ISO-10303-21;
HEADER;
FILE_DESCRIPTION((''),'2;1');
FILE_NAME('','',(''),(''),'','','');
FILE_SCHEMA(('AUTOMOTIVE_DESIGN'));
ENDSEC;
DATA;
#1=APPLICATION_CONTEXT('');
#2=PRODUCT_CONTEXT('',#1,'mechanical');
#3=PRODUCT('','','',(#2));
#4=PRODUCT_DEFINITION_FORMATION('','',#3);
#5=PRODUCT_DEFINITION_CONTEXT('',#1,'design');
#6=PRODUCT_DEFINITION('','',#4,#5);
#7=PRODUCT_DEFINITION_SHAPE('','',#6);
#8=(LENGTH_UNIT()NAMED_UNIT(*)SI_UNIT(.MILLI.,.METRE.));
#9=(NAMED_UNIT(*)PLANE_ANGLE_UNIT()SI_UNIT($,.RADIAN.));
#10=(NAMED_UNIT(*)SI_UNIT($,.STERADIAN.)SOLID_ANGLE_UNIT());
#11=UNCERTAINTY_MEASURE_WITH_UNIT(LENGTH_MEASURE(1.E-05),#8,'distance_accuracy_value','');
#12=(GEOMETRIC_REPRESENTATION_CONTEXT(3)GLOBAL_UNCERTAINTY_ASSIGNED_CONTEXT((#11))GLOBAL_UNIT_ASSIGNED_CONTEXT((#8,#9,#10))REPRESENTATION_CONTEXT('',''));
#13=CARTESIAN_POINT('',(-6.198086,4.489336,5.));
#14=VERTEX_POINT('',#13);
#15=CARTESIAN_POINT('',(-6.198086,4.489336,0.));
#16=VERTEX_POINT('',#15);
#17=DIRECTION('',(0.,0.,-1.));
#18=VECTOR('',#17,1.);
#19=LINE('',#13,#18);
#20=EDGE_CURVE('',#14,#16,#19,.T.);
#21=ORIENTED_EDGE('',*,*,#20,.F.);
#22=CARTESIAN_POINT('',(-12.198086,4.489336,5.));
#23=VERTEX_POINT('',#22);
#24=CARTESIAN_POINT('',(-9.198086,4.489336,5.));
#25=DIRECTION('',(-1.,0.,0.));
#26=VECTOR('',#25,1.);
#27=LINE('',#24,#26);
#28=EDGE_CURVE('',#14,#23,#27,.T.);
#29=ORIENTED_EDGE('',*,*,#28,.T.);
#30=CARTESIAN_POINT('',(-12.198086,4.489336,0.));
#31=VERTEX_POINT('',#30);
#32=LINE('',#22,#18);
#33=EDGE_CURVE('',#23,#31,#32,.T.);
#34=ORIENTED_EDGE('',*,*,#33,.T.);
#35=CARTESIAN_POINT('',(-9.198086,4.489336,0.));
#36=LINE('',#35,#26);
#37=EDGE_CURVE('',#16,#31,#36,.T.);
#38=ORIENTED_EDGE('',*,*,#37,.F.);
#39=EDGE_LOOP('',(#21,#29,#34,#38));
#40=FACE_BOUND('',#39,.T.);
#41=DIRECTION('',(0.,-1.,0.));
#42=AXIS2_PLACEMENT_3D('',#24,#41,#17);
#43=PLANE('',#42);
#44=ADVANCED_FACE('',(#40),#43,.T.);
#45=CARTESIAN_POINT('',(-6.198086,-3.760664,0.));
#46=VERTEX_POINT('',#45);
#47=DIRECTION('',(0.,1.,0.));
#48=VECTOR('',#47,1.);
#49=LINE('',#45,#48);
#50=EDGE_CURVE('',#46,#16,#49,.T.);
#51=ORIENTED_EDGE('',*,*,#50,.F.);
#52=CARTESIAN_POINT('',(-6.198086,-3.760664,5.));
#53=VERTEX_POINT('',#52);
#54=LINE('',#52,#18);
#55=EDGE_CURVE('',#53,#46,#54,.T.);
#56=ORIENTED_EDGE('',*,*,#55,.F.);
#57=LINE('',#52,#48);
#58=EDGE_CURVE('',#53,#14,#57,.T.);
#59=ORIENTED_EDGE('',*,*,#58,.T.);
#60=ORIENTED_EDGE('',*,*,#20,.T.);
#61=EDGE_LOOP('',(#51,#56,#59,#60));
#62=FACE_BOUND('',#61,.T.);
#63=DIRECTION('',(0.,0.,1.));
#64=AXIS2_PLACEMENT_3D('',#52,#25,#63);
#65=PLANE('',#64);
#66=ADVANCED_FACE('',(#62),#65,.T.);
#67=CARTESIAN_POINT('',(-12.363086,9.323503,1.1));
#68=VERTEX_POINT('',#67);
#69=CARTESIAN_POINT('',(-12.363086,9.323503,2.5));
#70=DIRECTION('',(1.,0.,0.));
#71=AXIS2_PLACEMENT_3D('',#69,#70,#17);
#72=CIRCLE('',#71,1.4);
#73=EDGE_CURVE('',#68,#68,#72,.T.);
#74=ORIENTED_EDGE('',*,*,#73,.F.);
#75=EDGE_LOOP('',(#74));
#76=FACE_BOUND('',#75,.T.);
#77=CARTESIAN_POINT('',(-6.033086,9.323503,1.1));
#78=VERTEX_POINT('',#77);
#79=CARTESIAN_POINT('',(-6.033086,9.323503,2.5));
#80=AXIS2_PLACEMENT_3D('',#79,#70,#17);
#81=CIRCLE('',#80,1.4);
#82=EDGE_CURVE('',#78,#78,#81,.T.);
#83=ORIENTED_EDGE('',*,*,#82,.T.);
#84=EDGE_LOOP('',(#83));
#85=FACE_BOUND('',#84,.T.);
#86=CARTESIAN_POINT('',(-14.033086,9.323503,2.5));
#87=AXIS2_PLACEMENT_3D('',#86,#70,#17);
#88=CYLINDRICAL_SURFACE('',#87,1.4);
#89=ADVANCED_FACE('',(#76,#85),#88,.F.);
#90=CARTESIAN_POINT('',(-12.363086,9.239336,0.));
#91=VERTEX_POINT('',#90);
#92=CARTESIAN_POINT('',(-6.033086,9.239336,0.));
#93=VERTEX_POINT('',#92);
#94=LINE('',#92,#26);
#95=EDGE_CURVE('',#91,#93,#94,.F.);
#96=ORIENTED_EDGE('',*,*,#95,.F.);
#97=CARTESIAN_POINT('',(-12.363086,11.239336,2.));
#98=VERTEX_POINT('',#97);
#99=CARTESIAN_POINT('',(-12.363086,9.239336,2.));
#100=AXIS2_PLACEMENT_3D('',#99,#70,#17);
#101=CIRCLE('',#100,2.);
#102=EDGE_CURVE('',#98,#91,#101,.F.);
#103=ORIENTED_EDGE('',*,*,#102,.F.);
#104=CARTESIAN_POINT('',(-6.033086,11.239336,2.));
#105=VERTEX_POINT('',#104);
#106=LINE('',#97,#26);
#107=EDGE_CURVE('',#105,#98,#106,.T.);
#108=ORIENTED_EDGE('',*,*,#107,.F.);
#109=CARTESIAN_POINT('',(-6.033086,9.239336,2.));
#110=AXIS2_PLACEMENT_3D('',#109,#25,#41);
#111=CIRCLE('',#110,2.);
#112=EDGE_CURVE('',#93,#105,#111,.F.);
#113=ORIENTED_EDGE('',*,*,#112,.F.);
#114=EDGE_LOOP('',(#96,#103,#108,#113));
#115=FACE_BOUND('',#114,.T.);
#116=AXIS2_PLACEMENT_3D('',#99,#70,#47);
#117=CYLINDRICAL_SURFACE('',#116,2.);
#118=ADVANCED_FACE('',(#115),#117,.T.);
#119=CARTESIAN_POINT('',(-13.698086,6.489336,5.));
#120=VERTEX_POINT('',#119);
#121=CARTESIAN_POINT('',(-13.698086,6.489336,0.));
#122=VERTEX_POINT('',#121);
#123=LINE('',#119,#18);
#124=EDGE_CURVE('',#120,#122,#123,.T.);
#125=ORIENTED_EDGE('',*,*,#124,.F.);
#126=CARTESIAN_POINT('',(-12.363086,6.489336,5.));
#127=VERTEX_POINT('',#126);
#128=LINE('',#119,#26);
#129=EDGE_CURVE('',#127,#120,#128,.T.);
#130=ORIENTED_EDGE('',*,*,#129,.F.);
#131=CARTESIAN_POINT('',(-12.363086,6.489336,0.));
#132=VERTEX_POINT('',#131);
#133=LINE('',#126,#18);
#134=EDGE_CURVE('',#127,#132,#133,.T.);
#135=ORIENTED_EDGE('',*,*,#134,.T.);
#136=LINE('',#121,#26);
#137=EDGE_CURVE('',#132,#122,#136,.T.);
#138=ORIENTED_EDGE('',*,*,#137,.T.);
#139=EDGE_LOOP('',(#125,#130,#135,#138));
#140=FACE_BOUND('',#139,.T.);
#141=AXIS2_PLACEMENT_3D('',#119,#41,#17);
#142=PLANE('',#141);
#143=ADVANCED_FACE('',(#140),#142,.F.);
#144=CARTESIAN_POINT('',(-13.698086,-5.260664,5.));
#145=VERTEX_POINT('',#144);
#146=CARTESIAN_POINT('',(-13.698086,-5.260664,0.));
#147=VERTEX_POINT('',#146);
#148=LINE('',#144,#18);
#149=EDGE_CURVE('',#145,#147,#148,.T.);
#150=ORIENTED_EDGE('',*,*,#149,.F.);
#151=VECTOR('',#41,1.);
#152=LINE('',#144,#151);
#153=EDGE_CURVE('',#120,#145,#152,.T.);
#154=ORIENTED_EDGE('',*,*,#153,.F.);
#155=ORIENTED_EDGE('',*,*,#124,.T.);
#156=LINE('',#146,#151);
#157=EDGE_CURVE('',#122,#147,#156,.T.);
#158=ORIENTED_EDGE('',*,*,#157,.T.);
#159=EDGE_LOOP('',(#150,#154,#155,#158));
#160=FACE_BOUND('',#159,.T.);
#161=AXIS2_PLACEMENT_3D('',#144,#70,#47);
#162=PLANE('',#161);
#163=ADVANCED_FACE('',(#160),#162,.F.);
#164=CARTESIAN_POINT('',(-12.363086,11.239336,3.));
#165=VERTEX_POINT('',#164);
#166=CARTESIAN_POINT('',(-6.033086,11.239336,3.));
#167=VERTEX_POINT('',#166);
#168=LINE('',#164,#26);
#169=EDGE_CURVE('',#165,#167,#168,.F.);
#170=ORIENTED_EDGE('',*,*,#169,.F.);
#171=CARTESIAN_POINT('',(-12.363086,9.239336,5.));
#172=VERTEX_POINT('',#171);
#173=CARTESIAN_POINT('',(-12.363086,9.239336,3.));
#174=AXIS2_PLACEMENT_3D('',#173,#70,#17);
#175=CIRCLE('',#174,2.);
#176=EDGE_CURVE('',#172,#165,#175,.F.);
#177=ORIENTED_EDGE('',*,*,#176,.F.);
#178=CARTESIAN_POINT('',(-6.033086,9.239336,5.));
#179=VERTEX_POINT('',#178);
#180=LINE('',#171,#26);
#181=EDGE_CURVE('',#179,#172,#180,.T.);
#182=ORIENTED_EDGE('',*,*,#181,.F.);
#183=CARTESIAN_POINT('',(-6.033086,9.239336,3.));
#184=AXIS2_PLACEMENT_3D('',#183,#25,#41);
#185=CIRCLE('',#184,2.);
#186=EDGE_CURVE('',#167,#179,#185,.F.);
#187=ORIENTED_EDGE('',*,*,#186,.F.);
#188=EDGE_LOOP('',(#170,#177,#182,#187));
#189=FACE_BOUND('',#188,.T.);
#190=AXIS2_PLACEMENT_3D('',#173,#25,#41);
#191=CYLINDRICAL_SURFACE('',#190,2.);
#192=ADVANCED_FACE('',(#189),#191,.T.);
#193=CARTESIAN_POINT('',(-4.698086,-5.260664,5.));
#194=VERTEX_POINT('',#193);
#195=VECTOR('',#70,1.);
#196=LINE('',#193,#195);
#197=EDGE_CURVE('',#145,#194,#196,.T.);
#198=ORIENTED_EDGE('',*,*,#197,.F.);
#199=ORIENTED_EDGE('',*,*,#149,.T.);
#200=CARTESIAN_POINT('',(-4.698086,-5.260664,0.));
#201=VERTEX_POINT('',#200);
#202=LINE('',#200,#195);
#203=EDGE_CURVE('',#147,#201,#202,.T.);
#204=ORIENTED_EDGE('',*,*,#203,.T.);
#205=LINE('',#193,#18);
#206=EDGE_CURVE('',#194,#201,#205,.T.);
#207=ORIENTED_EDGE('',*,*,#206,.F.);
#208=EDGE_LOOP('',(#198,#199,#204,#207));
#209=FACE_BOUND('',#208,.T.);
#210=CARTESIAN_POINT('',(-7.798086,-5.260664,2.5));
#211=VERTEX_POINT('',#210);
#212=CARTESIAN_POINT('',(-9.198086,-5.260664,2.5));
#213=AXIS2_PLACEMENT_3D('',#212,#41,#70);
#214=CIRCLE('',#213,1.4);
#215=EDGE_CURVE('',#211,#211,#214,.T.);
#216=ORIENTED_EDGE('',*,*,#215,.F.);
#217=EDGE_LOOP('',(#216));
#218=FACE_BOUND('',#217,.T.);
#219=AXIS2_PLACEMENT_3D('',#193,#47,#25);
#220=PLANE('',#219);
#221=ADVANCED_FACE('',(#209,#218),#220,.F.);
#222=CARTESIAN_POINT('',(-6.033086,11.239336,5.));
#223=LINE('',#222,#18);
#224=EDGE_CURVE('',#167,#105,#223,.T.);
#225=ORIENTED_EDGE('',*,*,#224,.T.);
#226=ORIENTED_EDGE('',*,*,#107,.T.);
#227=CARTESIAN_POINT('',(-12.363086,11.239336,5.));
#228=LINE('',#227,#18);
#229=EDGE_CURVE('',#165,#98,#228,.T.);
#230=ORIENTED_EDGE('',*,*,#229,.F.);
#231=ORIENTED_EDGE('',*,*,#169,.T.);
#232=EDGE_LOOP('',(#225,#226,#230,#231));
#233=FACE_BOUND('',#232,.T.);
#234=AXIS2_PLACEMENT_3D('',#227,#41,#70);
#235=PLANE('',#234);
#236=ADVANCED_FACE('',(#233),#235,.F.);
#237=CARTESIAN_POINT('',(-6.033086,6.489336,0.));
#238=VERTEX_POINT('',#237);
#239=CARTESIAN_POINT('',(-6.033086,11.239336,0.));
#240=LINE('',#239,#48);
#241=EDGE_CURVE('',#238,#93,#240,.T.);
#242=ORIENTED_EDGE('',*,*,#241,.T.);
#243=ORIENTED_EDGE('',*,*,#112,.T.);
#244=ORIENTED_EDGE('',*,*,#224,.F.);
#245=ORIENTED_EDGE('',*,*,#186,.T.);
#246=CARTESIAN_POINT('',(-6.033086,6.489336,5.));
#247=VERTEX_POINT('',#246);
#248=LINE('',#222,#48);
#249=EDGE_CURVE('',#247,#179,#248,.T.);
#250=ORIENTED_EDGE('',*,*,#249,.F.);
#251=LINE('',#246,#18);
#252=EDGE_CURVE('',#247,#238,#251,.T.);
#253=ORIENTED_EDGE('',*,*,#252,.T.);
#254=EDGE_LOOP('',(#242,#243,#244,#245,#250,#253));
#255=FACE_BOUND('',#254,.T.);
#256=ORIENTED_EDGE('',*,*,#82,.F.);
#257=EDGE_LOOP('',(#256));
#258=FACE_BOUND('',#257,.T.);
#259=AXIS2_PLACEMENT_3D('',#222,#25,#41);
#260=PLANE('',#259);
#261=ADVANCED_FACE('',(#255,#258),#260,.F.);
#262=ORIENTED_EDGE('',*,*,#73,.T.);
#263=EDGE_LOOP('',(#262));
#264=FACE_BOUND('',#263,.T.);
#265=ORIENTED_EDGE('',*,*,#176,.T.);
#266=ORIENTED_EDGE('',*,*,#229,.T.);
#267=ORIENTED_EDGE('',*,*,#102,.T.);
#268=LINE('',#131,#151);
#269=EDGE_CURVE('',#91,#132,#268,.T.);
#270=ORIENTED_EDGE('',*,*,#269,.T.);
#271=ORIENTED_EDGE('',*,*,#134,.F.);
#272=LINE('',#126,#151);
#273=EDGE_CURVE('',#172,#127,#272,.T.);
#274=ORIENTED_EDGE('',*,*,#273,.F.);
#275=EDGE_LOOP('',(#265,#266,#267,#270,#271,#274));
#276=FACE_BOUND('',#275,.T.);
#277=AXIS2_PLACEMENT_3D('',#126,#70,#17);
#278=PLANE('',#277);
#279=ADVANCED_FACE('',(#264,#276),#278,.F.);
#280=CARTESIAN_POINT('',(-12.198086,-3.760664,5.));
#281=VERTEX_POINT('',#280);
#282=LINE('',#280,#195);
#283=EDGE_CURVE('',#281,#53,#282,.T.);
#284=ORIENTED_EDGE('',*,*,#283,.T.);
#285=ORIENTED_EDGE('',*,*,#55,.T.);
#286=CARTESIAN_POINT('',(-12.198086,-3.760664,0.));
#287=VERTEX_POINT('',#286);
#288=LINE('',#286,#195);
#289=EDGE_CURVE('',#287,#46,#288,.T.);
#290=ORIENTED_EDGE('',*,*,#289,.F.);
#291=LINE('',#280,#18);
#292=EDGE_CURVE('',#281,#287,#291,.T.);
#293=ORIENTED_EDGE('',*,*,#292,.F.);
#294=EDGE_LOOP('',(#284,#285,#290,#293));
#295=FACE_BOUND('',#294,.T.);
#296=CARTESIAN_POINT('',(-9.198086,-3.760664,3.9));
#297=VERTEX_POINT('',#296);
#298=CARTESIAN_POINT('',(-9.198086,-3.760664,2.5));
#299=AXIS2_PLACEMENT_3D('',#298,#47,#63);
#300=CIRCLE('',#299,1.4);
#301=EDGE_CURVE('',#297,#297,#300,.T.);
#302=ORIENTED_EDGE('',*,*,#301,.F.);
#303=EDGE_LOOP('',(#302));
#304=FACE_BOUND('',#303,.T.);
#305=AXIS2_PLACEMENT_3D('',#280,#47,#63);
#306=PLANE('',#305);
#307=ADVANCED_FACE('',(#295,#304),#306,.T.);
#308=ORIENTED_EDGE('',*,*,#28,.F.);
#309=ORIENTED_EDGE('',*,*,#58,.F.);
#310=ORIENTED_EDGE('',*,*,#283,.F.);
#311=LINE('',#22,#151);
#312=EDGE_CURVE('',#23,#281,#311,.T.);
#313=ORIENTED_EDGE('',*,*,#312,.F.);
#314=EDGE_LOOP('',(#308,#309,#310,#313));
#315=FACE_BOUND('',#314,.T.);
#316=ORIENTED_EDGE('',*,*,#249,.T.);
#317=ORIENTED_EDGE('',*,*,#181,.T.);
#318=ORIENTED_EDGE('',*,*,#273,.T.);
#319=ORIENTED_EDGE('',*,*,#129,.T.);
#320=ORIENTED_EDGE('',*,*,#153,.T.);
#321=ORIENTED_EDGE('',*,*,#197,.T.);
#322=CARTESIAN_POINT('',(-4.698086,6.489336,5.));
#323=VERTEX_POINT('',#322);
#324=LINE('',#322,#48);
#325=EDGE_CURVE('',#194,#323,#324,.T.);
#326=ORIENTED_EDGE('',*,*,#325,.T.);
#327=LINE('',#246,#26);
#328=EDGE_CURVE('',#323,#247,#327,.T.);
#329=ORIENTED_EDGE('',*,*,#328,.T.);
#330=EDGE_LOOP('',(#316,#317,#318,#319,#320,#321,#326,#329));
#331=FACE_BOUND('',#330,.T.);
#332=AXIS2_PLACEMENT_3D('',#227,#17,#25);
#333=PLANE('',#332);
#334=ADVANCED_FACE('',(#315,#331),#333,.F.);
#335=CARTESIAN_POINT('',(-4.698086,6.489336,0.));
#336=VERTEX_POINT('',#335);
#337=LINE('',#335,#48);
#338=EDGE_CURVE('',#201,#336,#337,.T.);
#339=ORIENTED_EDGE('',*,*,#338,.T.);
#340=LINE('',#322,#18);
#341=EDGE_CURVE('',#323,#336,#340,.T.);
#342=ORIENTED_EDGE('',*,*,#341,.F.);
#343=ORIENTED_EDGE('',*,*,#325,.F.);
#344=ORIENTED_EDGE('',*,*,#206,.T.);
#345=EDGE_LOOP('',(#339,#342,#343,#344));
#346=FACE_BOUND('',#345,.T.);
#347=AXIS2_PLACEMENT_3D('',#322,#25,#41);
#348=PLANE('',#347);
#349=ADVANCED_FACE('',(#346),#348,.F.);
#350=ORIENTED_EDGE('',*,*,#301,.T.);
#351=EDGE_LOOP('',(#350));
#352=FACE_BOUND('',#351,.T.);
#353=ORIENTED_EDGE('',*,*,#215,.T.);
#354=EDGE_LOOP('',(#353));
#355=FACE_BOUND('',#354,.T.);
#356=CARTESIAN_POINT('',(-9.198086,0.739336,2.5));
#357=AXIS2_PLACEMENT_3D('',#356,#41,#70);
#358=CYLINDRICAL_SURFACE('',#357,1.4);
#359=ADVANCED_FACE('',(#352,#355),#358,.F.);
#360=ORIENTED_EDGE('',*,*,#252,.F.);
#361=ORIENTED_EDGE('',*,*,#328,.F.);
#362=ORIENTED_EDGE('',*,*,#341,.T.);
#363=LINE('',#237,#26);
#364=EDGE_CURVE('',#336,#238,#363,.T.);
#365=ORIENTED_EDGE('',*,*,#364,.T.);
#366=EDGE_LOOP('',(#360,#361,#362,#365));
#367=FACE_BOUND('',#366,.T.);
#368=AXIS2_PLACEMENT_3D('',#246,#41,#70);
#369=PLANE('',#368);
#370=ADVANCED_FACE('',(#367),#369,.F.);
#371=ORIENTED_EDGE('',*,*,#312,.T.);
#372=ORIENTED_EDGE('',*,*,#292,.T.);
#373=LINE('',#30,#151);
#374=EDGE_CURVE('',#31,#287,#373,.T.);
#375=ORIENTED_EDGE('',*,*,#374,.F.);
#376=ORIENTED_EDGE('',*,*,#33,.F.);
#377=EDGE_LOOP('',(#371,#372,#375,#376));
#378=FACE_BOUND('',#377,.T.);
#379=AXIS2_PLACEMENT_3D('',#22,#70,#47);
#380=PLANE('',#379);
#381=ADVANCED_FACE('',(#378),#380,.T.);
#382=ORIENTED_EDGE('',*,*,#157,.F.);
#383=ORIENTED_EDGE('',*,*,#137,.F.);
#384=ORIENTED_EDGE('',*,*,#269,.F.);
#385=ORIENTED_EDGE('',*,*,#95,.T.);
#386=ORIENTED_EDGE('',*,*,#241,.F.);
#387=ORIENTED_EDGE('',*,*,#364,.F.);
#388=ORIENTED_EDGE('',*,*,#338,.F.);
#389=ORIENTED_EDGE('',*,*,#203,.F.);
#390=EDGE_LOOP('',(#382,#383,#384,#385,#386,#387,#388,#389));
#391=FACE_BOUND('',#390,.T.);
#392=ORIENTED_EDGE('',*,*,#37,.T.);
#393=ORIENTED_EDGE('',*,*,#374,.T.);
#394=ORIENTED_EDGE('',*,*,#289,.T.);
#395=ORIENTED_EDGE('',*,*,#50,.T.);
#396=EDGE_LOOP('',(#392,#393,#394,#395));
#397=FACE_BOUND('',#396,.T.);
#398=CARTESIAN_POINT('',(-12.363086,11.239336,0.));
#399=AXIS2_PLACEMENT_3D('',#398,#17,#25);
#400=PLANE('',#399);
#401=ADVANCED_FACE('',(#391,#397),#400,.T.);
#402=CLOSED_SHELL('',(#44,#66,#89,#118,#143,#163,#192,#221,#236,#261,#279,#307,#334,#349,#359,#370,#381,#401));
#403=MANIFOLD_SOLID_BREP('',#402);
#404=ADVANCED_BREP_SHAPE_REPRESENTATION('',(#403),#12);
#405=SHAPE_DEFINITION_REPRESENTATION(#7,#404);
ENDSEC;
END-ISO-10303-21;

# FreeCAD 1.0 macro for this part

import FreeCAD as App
import Part
import Sketcher
Q = App.Units.Quantity


def edges_at(feature, points):
    """Names of the edges that pass closest to the given points."""
    edges = feature.Shape.Edges
    near = lambda p: min(range(len(edges)), key=lambda i: edges[i].distToShape(Part.Vertex(*p))[0])
    return sorted({f"Edge{near(p) + 1}" for p in points})

doc = App.newDocument("Part")
body = doc.addObject("PartDesign::Body", "Body")

sketch1 = doc.addObject("Sketcher::SketchObject", "Sketch")
body.addObject(sketch1)
sketch1.AttachmentSupport = (doc.XY_Plane, [""])
sketch1.MapMode = "FlatFace"
sketch1.addGeometry([
    Part.LineSegment(App.Vector(-6, 11.2, 0), App.Vector(-12.4, 11.2, 0)),
    Part.LineSegment(App.Vector(-12.4, 11.2, 0), App.Vector(-12.4, 6.5, 0)),
    Part.LineSegment(App.Vector(-12.4, 6.5, 0), App.Vector(-13.7, 6.5, 0)),
    Part.LineSegment(App.Vector(-13.7, 6.5, 0), App.Vector(-13.7, -5.3, 0)),
    Part.LineSegment(App.Vector(-13.7, -5.3, 0), App.Vector(-4.7, -5.3, 0)),
    Part.LineSegment(App.Vector(-4.7, -5.3, 0), App.Vector(-4.7, 6.5, 0)),
    Part.LineSegment(App.Vector(-4.7, 6.5, 0), App.Vector(-6, 6.5, 0)),
    Part.LineSegment(App.Vector(-6, 6.5, 0), App.Vector(-6, 11.2, 0)),
    Part.LineSegment(App.Vector(-6.2, 4.5, 0), App.Vector(-6.2, -3.8, 0)),
    Part.LineSegment(App.Vector(-6.2, -3.8, 0), App.Vector(-12.2, -3.8, 0)),
    Part.LineSegment(App.Vector(-12.2, -3.8, 0), App.Vector(-12.2, 4.5, 0)),
    Part.LineSegment(App.Vector(-12.2, 4.5, 0), App.Vector(-6.2, 4.5, 0)),
], False)
sketch1.addConstraint([
    Sketcher.Constraint("Coincident", 0, 2, 1, 1),
    Sketcher.Constraint("Coincident", 1, 2, 2, 1),
    Sketcher.Constraint("Coincident", 2, 2, 3, 1),
    Sketcher.Constraint("Coincident", 3, 2, 4, 1),
    Sketcher.Constraint("Coincident", 4, 2, 5, 1),
    Sketcher.Constraint("Coincident", 5, 2, 6, 1),
    Sketcher.Constraint("Coincident", 6, 2, 7, 1),
    Sketcher.Constraint("Coincident", 7, 2, 0, 1),
    Sketcher.Constraint("Coincident", 8, 2, 9, 1),
    Sketcher.Constraint("Coincident", 9, 2, 10, 1),
    Sketcher.Constraint("Coincident", 10, 2, 11, 1),
    Sketcher.Constraint("Coincident", 11, 2, 8, 1),
    Sketcher.Constraint("Horizontal", 0),
    Sketcher.Constraint("Vertical", 1),
    Sketcher.Constraint("Horizontal", 2),
    Sketcher.Constraint("Vertical", 3),
    Sketcher.Constraint("Horizontal", 4),
    Sketcher.Constraint("Vertical", 5),
    Sketcher.Constraint("Horizontal", 6),
    Sketcher.Constraint("Vertical", 7),
    Sketcher.Constraint("Vertical", 8),
    Sketcher.Constraint("Horizontal", 9),
    Sketcher.Constraint("Vertical", 10),
    Sketcher.Constraint("Horizontal", 11),
    Sketcher.Constraint("Horizontal", 2, 2, 5, 2),
    Sketcher.Constraint("Equal", 2, 6),
    Sketcher.Constraint("DistanceX", 4, 1, 4, 2, Q("9 mm")),
    Sketcher.Constraint("DistanceX", 9, 2, 9, 1, Q("6 mm")),
    Sketcher.Constraint("DistanceY", 10, 2, 1, 2, Q("2 mm")),
    Sketcher.Constraint("DistanceX", 0, 2, 0, 1, Q("6.33 mm")),
    Sketcher.Constraint("DistanceY", 1, 2, 1, 1, Q("4.75 mm")),
    Sketcher.Constraint("DistanceY", 3, 2, 3, 1, Q("11.75 mm")),
    Sketcher.Constraint("DistanceY", 8, 2, 8, 1, Q("8.25 mm")),
    Sketcher.Constraint("DistanceX", 8, 2, 4, 2, Q("1.5 mm")),
    Sketcher.Constraint("DistanceX", 0, 2, -1, 1, Q("12.363086 mm")),
    Sketcher.Constraint("DistanceY", -1, 1, 0, 2, Q("11.239336 mm")),
])
pad1 = doc.addObject("PartDesign::Pad", "Pad")
body.addObject(pad1)
pad1.Profile = sketch1
pad1.Length = 5

sketch2 = doc.addObject("Sketcher::SketchObject", "Sketch001")
body.addObject(sketch2)
sketch2.AttachmentSupport = (doc.YZ_Plane, [""])
sketch2.MapMode = "FlatFace"
sketch2.AttachmentOffset = App.Placement(App.Vector(0, 0, -6.033086), App.Rotation())
sketch2.addGeometry(Part.Circle(App.Vector(9.3, 2.5, 0), App.Vector(0, 0, 1), 1.4), False)
sketch2.addConstraint([
    Sketcher.Constraint("Diameter", 0, Q("2.8 mm")),
    Sketcher.Constraint("DistanceY", -1, 1, 0, 3, Q("2.5 mm")),
    Sketcher.Constraint("DistanceX", -1, 1, 0, 3, Q("9.323503 mm")),
])
pocket1 = doc.addObject("PartDesign::Pocket", "Pocket")
body.addObject(pocket1)
pocket1.Profile = sketch2
pocket1.Length = 8

sketch3 = doc.addObject("Sketcher::SketchObject", "Sketch002")
body.addObject(sketch3)
sketch3.AttachmentSupport = (doc.XZ_Plane, [""])
sketch3.MapMode = "FlatFace"
sketch3.AttachmentOffset = App.Placement(App.Vector(0, 0, 5.260664), App.Rotation())
sketch3.addGeometry(Part.Circle(App.Vector(-9.2, 2.5, 0), App.Vector(0, 0, 1), 1.4), False)
sketch3.addConstraint([
    Sketcher.Constraint("Diameter", 0, Q("2.8 mm")),
    Sketcher.Constraint("DistanceY", -1, 1, 0, 3, Q("2.5 mm")),
    Sketcher.Constraint("DistanceX", 0, 3, -1, 1, Q("9.198086 mm")),
])
pocket2 = doc.addObject("PartDesign::Pocket", "Pocket001")
body.addObject(pocket2)
pocket2.Profile = sketch3
pocket2.Length = 6
doc.recompute()

fillet = doc.addObject("PartDesign::Fillet", "Fillet")
body.addObject(fillet)
fillet.Base = (pocket2, edges_at(pocket2, [(-9.198, 11.239, 5), (-9.198, 11.239, 0)]))
fillet.Radius = 2

doc.recompute()
